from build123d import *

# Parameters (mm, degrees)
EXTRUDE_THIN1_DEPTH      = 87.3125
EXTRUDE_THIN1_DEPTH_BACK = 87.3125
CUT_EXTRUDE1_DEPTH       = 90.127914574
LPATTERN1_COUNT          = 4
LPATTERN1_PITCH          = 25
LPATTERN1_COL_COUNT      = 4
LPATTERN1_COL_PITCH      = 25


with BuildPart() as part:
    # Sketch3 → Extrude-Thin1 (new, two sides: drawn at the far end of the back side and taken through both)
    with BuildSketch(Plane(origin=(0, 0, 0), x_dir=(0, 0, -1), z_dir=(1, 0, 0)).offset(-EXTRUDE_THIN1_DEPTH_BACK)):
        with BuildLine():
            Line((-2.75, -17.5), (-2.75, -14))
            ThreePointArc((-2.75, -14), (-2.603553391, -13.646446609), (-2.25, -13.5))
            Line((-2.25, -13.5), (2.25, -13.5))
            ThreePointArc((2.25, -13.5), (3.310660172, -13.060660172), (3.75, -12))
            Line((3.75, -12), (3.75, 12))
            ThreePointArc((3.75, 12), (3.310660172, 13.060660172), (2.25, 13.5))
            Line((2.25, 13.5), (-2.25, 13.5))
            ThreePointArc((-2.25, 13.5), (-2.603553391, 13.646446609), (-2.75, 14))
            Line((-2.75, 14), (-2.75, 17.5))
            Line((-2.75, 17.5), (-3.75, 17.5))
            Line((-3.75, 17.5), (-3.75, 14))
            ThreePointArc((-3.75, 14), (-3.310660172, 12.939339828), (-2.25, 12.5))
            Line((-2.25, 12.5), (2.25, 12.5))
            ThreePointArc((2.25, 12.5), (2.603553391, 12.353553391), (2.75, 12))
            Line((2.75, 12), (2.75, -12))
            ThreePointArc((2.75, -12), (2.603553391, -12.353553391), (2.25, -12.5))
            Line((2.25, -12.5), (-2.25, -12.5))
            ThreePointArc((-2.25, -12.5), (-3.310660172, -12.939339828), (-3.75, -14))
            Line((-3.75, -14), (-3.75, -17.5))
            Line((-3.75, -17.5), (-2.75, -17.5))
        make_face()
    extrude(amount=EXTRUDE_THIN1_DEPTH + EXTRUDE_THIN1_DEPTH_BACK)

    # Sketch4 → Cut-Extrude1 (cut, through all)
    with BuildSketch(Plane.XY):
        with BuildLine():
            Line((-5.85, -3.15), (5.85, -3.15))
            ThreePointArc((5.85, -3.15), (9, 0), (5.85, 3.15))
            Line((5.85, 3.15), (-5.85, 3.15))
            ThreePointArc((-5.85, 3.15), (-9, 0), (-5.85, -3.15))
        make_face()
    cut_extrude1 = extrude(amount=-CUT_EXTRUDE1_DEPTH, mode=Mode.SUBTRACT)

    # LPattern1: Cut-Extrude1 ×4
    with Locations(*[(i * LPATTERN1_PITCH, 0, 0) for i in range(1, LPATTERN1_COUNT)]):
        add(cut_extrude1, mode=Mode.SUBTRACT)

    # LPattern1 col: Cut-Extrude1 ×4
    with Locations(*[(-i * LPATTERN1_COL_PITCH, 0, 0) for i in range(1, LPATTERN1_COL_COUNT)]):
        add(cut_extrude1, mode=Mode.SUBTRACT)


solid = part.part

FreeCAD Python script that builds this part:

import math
import FreeCAD as App
import Part
import Sketcher

V = App.Vector
Q = App.Units.Quantity

doc = App.newDocument("Part")
body = doc.addObject("PartDesign::Body", "Body")

# Sketch on YZ plane
sketch1 = body.newObject("Sketcher::SketchObject", "Sketch")
sketch1.AttachmentSupport = (doc.getObject("YZ_Plane"), [""])
sketch1.MapMode = "FlatFace"
sketch1.addGeometry(Part.LineSegment(V(-17.5, 2.75, 0), V(-14, 2.75, 0)), False)
sketch1.addGeometry(Part.ArcOfCircle(Part.Circle(V(-14, 2.25, 0), V(0, 0, 1), 0.5), math.radians(0), math.radians(90)), False)
sketch1.addGeometry(Part.LineSegment(V(-13.5, 2.25, 0), V(-13.5, -2.25, 0)), False)
sketch1.addGeometry(Part.ArcOfCircle(Part.Circle(V(-12, -2.25, 0), V(0, 0, 1), 1.5), math.radians(180), math.radians(270)), False)
sketch1.addGeometry(Part.LineSegment(V(-12, -3.75, 0), V(12, -3.75, 0)), False)
sketch1.addGeometry(Part.ArcOfCircle(Part.Circle(V(12, -2.25, 0), V(0, 0, 1), 1.5), math.radians(-90), math.radians(0)), False)
sketch1.addGeometry(Part.LineSegment(V(13.5, -2.25, 0), V(13.5, 2.25, 0)), False)
sketch1.addGeometry(Part.ArcOfCircle(Part.Circle(V(14, 2.25, 0), V(0, 0, 1), 0.5), math.radians(90), math.radians(180)), False)
sketch1.addGeometry(Part.LineSegment(V(14, 2.75, 0), V(17.5, 2.75, 0)), False)
sketch1.addGeometry(Part.LineSegment(V(17.5, 2.75, 0), V(17.5, 3.75, 0)), False)
sketch1.addGeometry(Part.LineSegment(V(17.5, 3.75, 0), V(14, 3.75, 0)), False)
sketch1.addGeometry(Part.ArcOfCircle(Part.Circle(V(14, 2.25, 0), V(0, 0, 1), 1.5), math.radians(90), math.radians(180)), False)
sketch1.addGeometry(Part.LineSegment(V(12.5, 2.25, 0), V(12.5, -2.25, 0)), False)
sketch1.addGeometry(Part.ArcOfCircle(Part.Circle(V(12, -2.25, 0), V(0, 0, 1), 0.5), math.radians(-90), math.radians(0)), False)
sketch1.addGeometry(Part.LineSegment(V(12, -2.75, 0), V(-12, -2.75, 0)), False)
sketch1.addGeometry(Part.ArcOfCircle(Part.Circle(V(-12, -2.25, 0), V(0, 0, 1), 0.5), math.radians(180), math.radians(270)), False)
sketch1.addGeometry(Part.LineSegment(V(-12.5, -2.25, 0), V(-12.5, 2.25, 0)), False)
sketch1.addGeometry(Part.ArcOfCircle(Part.Circle(V(-14, 2.25, 0), V(0, 0, 1), 1.5), math.radians(0), math.radians(90)), False)
sketch1.addGeometry(Part.LineSegment(V(-14, 3.75, 0), V(-17.5, 3.75, 0)), False)
sketch1.addGeometry(Part.LineSegment(V(-17.5, 3.75, 0), V(-17.5, 2.75, 0)), False)
sketch1.addConstraint(Sketcher.Constraint("Tangent", 0, 2, 1, 2))
sketch1.addConstraint(Sketcher.Constraint("Tangent", 1, 1, 2, 1))
sketch1.addConstraint(Sketcher.Constraint("Tangent", 2, 2, 3, 1))
sketch1.addConstraint(Sketcher.Constraint("Tangent", 3, 2, 4, 1))
sketch1.addConstraint(Sketcher.Constraint("Tangent", 4, 2, 5, 1))
sketch1.addConstraint(Sketcher.Constraint("Tangent", 5, 2, 6, 1))
sketch1.addConstraint(Sketcher.Constraint("Tangent", 6, 2, 7, 2))
sketch1.addConstraint(Sketcher.Constraint("Tangent", 7, 1, 8, 1))
sketch1.addConstraint(Sketcher.Constraint("Coincident", 8, 2, 9, 1))
sketch1.addConstraint(Sketcher.Constraint("Coincident", 9, 2, 10, 1))
sketch1.addConstraint(Sketcher.Constraint("Tangent", 10, 2, 11, 1))
sketch1.addConstraint(Sketcher.Constraint("Tangent", 11, 2, 12, 1))
sketch1.addConstraint(Sketcher.Constraint("Tangent", 12, 2, 13, 2))
sketch1.addConstraint(Sketcher.Constraint("Tangent", 13, 1, 14, 1))
sketch1.addConstraint(Sketcher.Constraint("Tangent", 14, 2, 15, 2))
sketch1.addConstraint(Sketcher.Constraint("Tangent", 15, 1, 16, 1))
sketch1.addConstraint(Sketcher.Constraint("Tangent", 16, 2, 17, 1))
sketch1.addConstraint(Sketcher.Constraint("Tangent", 17, 2, 18, 1))
sketch1.addConstraint(Sketcher.Constraint("Coincident", 18, 2, 19, 1))
sketch1.addConstraint(Sketcher.Constraint("Coincident", 19, 2, 0, 1))
sketch1.addConstraint(Sketcher.Constraint("Horizontal", 0))
sketch1.addConstraint(Sketcher.Constraint("Vertical", 2))
sketch1.addConstraint(Sketcher.Constraint("Horizontal", 4))
sketch1.addConstraint(Sketcher.Constraint("Vertical", 6))
sketch1.addConstraint(Sketcher.Constraint("Horizontal", 8))
sketch1.addConstraint(Sketcher.Constraint("Vertical", 9))
sketch1.addConstraint(Sketcher.Constraint("Horizontal", 10))
sketch1.addConstraint(Sketcher.Constraint("Vertical", 12))
sketch1.addConstraint(Sketcher.Constraint("Horizontal", 14))
sketch1.addConstraint(Sketcher.Constraint("Vertical", 16))
sketch1.addConstraint(Sketcher.Constraint("Horizontal", 18))
sketch1.addConstraint(Sketcher.Constraint("Vertical", 19))
sketch1.addConstraint(Sketcher.Constraint("Coincident", 11, 3, 7, 3))
sketch1.addConstraint(Sketcher.Constraint("Coincident", 13, 3, 5, 3))
sketch1.addConstraint(Sketcher.Constraint("Coincident", 15, 3, 3, 3))
sketch1.addConstraint(Sketcher.Constraint("Coincident", 17, 3, 1, 3))
sketch1.addConstraint(Sketcher.Constraint("Equal", 3, 5))
sketch1.addConstraint(Sketcher.Constraint("Equal", 1, 7))
sketch1.addConstraint(Sketcher.Constraint("Equal", 5, 11))
sketch1.addConstraint(Sketcher.Constraint("Symmetric", 1, 1, 5, 2, -1, 1))
sketch1.addConstraint(Sketcher.Constraint("Symmetric", 9, 2, 18, 2, -2))
sketch1.addConstraint(Sketcher.Constraint("Radius", 1, Q("0.5 mm")))
sketch1.addConstraint(Sketcher.Constraint("Radius", 3, Q("1.5 mm")))
sketch1.addConstraint(Sketcher.Constraint("DistanceX", 4, 1, 4, 2, Q("24 mm")))
sketch1.addConstraint(Sketcher.Constraint("DistanceX", 0, 1, 0, 2, Q("3.5 mm")))
sketch1.addConstraint(Sketcher.Constraint("DistanceY", 2, 2, 2, 1, Q("4.5 mm")))
pad1 = body.newObject("PartDesign::Pad", "Pad")
pad1.Profile = sketch1
pad1.Type = "TwoLengths"
pad1.Length = 87.3125
pad1.Length2 = 87.3125

# Sketch on XY plane
sketch2 = body.newObject("Sketcher::SketchObject", "Sketch001")
sketch2.AttachmentSupport = (doc.getObject("XY_Plane"), [""])
sketch2.MapMode = "FlatFace"
sketch2.addGeometry(Part.LineSegment(V(-5.8, -3.1, 0), V(5.8, -3.1, 0)), False)
sketch2.addGeometry(Part.ArcOfCircle(Part.Circle(V(5.8, 0, 0), V(0, 0, 1), 3.1), math.radians(-90), math.radians(90)), False)
sketch2.addGeometry(Part.LineSegment(V(5.8, 3.1, 0), V(-5.8, 3.1, 0)), False)
sketch2.addGeometry(Part.ArcOfCircle(Part.Circle(V(-5.8, 0, 0), V(0, 0, 1), 3.1), math.radians(90), math.radians(270)), False)
sketch2.addConstraint(Sketcher.Constraint("Tangent", 0, 2, 1, 1))
sketch2.addConstraint(Sketcher.Constraint("Tangent", 1, 2, 2, 1))
sketch2.addConstraint(Sketcher.Constraint("Tangent", 2, 2, 3, 1))
sketch2.addConstraint(Sketcher.Constraint("Tangent", 3, 2, 0, 1))
sketch2.addConstraint(Sketcher.Constraint("Horizontal", 0))
sketch2.addConstraint(Sketcher.Constraint("Horizontal", 2))
sketch2.addConstraint(Sketcher.Constraint("Symmetric", 1, 3, 3, 3, -1, 1))
sketch2.addConstraint(Sketcher.Constraint("Radius", 1, Q("3.15 mm")))
sketch2.addConstraint(Sketcher.Constraint("DistanceX", 0, 1, 0, 2, Q("11.7 mm")))
pocket1 = body.newObject("PartDesign::Pocket", "Pocket")
pocket1.Profile = sketch2
pocket1.Type = "ThroughAll"
doc.recompute()

linearpattern = body.newObject("PartDesign::LinearPattern", "LinearPattern")
linearpattern.Originals = [pocket1]
linearpattern.Direction = (doc.getObject("X_Axis"), [""])
linearpattern.Mode = "offset"
linearpattern.Offset = 25
linearpattern.Occurrences = 4
body.Tip = linearpattern
doc.recompute()

linearpattern2 = body.newObject("PartDesign::LinearPattern", "LinearPattern001")
linearpattern2.Originals = [pocket1]
linearpattern2.Direction = (doc.getObject("X_Axis"), [""])
linearpattern2.Mode = "offset"
linearpattern2.Offset = 25
linearpattern2.Occurrences = 4
linearpattern2.Reversed = True
body.Tip = linearpattern2

doc.recompute()
